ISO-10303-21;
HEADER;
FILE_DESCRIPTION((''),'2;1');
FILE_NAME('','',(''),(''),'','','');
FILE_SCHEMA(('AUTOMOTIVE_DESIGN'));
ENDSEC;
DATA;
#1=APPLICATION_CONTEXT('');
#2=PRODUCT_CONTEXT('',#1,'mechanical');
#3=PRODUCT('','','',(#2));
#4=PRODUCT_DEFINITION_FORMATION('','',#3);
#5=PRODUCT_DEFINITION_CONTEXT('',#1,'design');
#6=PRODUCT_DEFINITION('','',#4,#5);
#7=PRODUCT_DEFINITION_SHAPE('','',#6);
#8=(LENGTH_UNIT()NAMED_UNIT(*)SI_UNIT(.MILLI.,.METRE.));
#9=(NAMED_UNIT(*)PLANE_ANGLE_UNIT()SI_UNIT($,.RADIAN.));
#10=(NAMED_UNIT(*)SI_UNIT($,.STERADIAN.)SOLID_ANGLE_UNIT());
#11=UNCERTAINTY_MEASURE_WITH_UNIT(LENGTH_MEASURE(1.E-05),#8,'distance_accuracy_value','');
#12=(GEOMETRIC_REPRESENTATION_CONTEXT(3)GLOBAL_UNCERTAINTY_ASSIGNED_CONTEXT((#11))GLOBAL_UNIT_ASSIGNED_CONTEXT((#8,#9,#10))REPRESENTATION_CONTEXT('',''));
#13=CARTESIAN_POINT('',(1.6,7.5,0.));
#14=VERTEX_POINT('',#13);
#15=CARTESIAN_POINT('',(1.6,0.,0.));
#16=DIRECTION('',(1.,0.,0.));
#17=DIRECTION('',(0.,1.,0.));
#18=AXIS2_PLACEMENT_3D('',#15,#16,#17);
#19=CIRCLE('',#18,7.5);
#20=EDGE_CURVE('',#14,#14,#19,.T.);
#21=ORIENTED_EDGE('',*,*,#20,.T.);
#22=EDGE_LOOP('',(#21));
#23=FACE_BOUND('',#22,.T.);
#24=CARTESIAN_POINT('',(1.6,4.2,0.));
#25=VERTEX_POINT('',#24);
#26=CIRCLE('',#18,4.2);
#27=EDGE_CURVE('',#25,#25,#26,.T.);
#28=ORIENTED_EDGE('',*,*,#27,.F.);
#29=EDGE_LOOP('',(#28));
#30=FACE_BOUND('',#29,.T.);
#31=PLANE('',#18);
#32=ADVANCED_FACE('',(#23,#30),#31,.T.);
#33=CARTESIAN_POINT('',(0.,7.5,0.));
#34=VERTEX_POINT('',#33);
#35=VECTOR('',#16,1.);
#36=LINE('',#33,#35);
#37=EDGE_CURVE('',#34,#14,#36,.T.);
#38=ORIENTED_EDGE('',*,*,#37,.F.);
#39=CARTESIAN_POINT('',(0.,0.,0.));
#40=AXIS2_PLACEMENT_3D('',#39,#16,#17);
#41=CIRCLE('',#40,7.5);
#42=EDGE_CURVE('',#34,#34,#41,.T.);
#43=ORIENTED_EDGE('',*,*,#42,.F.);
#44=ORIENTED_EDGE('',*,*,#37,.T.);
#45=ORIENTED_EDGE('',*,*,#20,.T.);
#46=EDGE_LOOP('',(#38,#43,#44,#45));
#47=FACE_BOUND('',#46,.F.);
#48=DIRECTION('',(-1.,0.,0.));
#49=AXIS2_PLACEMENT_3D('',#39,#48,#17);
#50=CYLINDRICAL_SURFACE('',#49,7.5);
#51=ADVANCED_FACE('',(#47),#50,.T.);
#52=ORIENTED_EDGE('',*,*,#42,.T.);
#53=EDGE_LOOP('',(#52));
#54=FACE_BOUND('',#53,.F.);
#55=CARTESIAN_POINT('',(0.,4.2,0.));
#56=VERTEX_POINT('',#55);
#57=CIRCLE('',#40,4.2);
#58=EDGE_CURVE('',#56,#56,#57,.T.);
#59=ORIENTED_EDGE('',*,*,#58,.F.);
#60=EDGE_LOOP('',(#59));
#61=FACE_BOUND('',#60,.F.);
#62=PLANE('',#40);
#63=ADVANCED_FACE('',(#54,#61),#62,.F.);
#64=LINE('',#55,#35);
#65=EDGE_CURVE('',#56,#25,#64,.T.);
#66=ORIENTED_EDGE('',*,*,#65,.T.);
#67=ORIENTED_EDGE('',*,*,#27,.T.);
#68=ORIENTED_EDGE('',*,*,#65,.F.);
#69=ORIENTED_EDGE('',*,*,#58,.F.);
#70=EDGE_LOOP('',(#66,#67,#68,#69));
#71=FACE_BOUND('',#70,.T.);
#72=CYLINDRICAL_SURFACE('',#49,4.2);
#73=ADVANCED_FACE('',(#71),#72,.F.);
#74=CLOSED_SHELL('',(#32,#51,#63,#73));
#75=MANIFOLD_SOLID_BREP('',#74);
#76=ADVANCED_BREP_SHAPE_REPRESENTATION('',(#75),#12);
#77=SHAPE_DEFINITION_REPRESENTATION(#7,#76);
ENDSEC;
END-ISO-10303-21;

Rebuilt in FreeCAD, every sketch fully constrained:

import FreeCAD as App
import Part
import Sketcher

V = App.Vector

doc = App.newDocument("Part")
body = doc.addObject("PartDesign::Body", "Body")

sketch1 = doc.addObject("Sketcher::SketchObject", "Sketch")
body.addObject(sketch1)
sketch1.AttachmentSupport = (doc.YZ_Plane, [""])
sketch1.MapMode = "FlatFace"
sketch1.addGeometry([
    Part.Circle(V(0, 0, 0), V(0, 0, 1), 7.5),
    Part.Circle(V(0, 0, 0), V(0, 0, 1), 4.2),
], False)
sketch1.addConstraint([
    Sketcher.Constraint("Coincident", 0, 3, -1, 1),
    Sketcher.Constraint("Coincident", 1, 3, -1, 1),
    Sketcher.Constraint("Diameter", 0, 15.0),
    Sketcher.Constraint("Diameter", 1, 8.4),
])
pad1 = doc.addObject("PartDesign::Pad", "Pad")
body.addObject(pad1)
pad1.Profile = sketch1
pad1.Length = 1.6

doc.recompute()
